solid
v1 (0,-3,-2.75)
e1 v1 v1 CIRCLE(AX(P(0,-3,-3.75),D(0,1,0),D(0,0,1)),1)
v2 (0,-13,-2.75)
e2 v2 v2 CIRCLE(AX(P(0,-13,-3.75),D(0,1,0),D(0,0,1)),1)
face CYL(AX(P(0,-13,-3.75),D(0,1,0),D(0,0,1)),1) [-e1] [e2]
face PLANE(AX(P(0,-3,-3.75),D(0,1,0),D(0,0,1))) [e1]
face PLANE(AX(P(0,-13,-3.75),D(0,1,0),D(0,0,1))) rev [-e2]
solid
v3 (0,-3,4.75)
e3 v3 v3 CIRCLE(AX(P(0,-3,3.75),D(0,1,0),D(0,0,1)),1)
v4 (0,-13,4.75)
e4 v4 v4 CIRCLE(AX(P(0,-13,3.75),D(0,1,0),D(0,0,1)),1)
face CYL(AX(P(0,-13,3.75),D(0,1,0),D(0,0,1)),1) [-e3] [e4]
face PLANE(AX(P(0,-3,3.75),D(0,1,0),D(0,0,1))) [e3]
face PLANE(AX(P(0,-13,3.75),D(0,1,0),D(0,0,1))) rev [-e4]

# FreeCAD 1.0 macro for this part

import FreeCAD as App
import Part
import Sketcher

V = App.Vector

doc = App.newDocument("Part")
body = doc.addObject("PartDesign::Body", "Body")

# Sketch on XZ plane
sketch1 = body.newObject("Sketcher::SketchObject", "Sketch")
sketch1.AttachmentSupport = (doc.getObject("XZ_Plane"), [""])
sketch1.MapMode = "FlatFace"
sketch1.AttachmentOffset = App.Placement(V(0, 0, 3), App.Rotation())
sketch1.addGeometry(Part.Circle(V(0, 3.75, 0), V(0, 0, 1), 1), False)
sketch1.addConstraint([
    Sketcher.Constraint("PointOnObject", 0, 3, -2),
    Sketcher.Constraint("Diameter", 0, 2.0),
    Sketcher.Constraint("DistanceY", -1, 1, 0, 3, 3.75),
])
pad1 = body.newObject("PartDesign::Pad", "Pad")
pad1.Profile = sketch1
pad1.Length = 10
body2 = doc.addObject("PartDesign::Body", "Body001")

# Sketch on XZ plane
sketch2 = body2.newObject("Sketcher::SketchObject", "Sketch001")
sketch2.AttachmentSupport = (doc.getObject("XZ_Plane001"), [""])
sketch2.MapMode = "FlatFace"
sketch2.AttachmentOffset = App.Placement(V(0, 0, 3), App.Rotation())
sketch2.addGeometry(Part.Circle(V(0, -3.75, 0), V(0, 0, 1), 1), False)
sketch2.addConstraint([
    Sketcher.Constraint("PointOnObject", 0, 3, -2),
    Sketcher.Constraint("Diameter", 0, 2.0),
    Sketcher.Constraint("DistanceY", 0, 3, -1, 1, 3.75),
])
pad2 = body2.newObject("PartDesign::Pad", "Pad001")
pad2.Profile = sketch2
pad2.Length = 10

doc.recompute()
